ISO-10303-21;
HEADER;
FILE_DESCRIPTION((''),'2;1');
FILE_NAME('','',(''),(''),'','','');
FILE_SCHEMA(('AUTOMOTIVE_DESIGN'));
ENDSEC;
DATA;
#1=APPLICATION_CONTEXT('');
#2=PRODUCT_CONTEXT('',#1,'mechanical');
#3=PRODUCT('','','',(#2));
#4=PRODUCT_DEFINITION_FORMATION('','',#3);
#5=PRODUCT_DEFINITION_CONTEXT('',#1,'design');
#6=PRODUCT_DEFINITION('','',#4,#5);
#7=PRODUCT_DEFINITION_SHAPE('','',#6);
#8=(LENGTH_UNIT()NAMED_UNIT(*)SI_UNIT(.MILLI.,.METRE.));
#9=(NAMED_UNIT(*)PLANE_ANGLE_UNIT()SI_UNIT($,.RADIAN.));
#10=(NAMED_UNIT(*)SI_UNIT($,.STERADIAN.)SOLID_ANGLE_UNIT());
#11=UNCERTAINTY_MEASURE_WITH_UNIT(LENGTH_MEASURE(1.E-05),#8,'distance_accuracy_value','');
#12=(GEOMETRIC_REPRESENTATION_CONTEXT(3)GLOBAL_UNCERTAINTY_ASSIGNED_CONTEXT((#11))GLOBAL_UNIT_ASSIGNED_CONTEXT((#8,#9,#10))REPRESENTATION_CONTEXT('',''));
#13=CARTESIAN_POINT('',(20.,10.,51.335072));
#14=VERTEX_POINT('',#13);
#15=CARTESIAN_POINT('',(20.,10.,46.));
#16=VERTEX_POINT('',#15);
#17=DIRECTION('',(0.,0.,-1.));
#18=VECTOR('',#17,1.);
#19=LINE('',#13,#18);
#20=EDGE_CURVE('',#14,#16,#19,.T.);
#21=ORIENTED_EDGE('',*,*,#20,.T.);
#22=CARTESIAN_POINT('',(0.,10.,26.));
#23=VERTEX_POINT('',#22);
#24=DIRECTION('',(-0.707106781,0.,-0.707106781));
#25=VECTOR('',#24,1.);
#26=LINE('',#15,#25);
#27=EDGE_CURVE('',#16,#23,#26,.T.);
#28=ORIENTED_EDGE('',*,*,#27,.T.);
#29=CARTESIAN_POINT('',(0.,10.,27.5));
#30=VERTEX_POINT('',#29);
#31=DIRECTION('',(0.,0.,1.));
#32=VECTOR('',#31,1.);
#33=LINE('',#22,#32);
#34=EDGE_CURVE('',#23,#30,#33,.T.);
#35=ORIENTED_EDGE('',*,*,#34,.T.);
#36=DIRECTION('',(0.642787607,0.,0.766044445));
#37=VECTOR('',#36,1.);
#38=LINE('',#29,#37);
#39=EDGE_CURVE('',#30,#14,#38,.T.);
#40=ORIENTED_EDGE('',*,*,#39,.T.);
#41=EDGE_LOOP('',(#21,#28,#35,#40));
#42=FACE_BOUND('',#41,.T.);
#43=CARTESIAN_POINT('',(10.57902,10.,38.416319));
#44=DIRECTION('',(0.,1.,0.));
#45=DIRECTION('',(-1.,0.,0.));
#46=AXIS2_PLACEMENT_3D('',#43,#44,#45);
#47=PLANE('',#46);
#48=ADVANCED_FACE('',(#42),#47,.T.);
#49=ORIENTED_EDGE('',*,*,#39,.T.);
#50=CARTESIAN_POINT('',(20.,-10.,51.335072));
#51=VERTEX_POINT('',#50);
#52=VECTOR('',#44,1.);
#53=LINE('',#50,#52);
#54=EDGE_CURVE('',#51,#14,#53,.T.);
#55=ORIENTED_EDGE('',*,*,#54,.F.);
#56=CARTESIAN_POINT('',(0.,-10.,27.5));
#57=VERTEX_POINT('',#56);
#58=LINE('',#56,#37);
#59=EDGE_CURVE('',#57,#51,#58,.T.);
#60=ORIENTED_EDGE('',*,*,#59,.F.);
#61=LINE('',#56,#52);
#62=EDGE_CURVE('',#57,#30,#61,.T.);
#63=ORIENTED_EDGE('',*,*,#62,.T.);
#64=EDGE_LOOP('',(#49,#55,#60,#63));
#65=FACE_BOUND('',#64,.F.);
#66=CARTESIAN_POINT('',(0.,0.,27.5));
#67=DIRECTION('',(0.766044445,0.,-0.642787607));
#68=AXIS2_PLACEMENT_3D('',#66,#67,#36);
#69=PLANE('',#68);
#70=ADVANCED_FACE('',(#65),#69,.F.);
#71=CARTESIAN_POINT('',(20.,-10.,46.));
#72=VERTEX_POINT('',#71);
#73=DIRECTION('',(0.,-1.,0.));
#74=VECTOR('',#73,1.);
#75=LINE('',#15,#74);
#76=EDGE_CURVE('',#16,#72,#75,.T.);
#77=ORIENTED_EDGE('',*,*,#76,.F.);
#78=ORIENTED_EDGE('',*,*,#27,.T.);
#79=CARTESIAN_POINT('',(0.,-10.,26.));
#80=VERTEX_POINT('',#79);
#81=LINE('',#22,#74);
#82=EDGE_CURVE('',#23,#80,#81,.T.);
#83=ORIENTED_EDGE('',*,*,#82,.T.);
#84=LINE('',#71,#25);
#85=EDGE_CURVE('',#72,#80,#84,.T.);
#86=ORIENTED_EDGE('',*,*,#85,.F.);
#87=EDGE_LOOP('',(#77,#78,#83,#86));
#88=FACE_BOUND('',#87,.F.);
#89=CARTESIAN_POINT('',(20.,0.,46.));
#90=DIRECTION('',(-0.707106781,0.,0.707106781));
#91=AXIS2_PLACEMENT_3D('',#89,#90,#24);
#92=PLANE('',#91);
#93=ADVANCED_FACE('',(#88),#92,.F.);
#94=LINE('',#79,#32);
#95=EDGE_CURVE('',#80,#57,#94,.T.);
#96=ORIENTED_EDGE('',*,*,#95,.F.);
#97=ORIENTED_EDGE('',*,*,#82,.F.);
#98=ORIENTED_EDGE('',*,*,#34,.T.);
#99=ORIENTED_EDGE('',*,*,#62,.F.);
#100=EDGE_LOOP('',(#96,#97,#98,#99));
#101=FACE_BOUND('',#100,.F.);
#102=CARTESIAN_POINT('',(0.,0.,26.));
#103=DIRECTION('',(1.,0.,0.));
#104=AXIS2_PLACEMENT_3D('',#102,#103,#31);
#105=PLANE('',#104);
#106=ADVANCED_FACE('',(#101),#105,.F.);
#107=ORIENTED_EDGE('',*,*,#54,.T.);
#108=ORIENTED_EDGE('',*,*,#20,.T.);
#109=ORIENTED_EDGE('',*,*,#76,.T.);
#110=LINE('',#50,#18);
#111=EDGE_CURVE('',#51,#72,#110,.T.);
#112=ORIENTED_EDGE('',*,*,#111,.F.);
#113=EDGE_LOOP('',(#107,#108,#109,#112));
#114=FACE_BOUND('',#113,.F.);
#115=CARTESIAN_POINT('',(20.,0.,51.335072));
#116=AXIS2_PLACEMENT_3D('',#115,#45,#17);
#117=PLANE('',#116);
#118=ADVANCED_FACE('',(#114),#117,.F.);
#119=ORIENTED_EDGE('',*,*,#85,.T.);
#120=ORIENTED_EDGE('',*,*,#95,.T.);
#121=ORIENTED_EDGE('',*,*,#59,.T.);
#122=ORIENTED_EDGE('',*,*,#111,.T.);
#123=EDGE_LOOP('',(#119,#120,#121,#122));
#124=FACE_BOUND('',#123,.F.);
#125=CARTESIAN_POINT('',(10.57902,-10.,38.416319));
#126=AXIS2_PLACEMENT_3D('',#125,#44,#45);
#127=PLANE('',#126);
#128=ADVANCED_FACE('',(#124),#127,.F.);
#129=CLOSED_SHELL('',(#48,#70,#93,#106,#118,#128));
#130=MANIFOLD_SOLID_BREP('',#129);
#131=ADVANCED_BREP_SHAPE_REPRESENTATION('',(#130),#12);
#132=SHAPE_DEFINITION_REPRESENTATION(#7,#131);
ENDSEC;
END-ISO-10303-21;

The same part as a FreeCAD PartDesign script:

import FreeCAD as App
import Part
import Sketcher

V = App.Vector
Q = App.Units.Quantity

doc = App.newDocument("Part")
body = doc.addObject("PartDesign::Body", "Body")

sketch1 = body.newObject("Sketcher::SketchObject", "Sketch")
sketch1.AttachmentSupport = (doc.getObject("XZ_Plane"), [""])
sketch1.MapMode = "FlatFace"
sketch1.addGeometry([
    Part.LineSegment(V(0, 27.5, 0), V(0, 26, 0)),
    Part.LineSegment(V(0, 26, 0), V(20, 46, 0)),
    Part.LineSegment(V(20, 46, 0), V(20, 51.3, 0)),
    Part.LineSegment(V(20, 51.3, 0), V(0, 27.5, 0)),
], False)
sketch1.addConstraint([
    Sketcher.Constraint("Coincident", 0, 2, 1, 1),
    Sketcher.Constraint("Coincident", 1, 2, 2, 1),
    Sketcher.Constraint("Coincident", 2, 2, 3, 1),
    Sketcher.Constraint("Coincident", 3, 2, 0, 1),
    Sketcher.Constraint("Vertical", 0),
    Sketcher.Constraint("Vertical", 2),
    Sketcher.Constraint("PointOnObject", 0, 2, -2),
    Sketcher.Constraint("Angle", 1, Q("45 deg")),
    Sketcher.Constraint("Angle", 3, Q("-130 deg")),
    Sketcher.Constraint("DistanceY", 0, 2, 0, 1, 1.5),
    Sketcher.Constraint("DistanceY", -1, 1, 0, 2, 26.0),
    Sketcher.Constraint("DistanceX", -1, 1, 1, 2, 20.0),
])
pad1 = body.newObject("PartDesign::Pad", "Pad")
pad1.Profile = sketch1
pad1.Length = 20
pad1.Midplane = True

doc.recompute()
